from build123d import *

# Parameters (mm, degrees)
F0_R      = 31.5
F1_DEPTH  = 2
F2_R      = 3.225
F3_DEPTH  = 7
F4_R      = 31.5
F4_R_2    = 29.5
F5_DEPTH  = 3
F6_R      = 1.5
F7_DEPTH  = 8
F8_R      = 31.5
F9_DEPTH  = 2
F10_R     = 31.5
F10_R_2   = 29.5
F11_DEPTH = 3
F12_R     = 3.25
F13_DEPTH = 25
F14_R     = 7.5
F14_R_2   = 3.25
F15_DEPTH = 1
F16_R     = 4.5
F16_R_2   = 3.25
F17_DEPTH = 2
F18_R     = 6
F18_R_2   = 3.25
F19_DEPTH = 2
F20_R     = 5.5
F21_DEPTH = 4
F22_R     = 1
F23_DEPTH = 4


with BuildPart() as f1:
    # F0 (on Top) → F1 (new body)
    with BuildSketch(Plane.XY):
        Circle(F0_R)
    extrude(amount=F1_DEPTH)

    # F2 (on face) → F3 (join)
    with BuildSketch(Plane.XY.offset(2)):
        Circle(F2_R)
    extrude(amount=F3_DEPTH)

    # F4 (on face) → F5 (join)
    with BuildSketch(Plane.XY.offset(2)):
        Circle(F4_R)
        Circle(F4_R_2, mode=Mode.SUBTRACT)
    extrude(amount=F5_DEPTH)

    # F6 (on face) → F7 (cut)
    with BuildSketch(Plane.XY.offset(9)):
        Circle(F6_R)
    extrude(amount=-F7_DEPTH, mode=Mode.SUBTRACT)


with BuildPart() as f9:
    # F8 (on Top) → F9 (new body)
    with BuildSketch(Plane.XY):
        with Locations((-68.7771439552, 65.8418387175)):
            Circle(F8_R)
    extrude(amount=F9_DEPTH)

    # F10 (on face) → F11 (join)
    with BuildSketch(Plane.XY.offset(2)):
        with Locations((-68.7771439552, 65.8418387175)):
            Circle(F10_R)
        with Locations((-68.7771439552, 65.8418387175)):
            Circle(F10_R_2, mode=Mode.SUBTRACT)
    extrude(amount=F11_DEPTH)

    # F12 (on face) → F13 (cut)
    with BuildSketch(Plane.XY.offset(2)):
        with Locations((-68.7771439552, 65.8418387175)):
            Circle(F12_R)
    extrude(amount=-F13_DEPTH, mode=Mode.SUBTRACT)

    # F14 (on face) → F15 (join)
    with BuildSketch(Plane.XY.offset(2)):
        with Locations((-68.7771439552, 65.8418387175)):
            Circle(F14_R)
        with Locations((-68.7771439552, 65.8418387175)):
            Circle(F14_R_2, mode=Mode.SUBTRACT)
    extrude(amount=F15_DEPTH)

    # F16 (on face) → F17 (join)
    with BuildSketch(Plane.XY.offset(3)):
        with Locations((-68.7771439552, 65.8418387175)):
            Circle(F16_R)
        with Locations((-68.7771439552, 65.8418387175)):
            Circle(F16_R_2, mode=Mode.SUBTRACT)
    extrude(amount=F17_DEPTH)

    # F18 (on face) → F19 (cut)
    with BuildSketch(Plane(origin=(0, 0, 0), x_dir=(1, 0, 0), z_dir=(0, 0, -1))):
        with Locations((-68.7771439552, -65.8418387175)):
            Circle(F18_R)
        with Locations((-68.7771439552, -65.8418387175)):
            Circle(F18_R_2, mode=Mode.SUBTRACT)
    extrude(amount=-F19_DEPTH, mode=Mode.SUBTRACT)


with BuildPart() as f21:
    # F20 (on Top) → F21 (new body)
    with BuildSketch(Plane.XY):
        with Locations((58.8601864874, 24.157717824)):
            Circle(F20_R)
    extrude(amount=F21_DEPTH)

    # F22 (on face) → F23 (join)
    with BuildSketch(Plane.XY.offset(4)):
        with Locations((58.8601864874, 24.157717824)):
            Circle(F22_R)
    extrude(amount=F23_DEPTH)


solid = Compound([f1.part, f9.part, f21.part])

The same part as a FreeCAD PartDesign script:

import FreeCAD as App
import Part
import Sketcher
from FreeCAD import Vector
Q = App.Units.Quantity

doc = App.newDocument("Part")
params = doc.addObject("Spreadsheet::Sheet", "Params")
for row, (alias, value) in enumerate([
    ("sketch1_diameter", "63 mm"),
    ("pad1_length", "2 mm"),
    ("sketch2_diameter", "6.45 mm"),
    ("pad2_length", "7 mm"),
    ("sketch3_diameter", "63 mm"),
    ("sketch3_diameter2", "59 mm"),
    ("pad3_length", "3 mm"),
    ("sketch4_diameter", "3 mm"),
    ("pocket1_length", "8 mm"),
    ("sketch5_diameter", "63 mm"),
    ("pad4_length", "2 mm"),
    ("sketch6_diameter", "63 mm"),
    ("sketch6_diameter2", "59 mm"),
    ("pad5_length", "3 mm"),
    ("sketch7_diameter", "6.5 mm"),
    ("pocket2_length", "25 mm"),
    ("sketch8_diameter", "15 mm"),
    ("sketch8_diameter2", "6.5 mm"),
    ("pad6_length", "1 mm"),
    ("sketch9_diameter", "9 mm"),
    ("sketch9_diameter2", "6.5 mm"),
    ("pad7_length", "2 mm"),
    ("sketch10_diameter", "12 mm"),
    ("sketch10_diameter2", "6.5 mm"),
    ("pocket3_length", "2 mm"),
    ("sketch11_diameter", "11 mm"),
    ("pad8_length", "4 mm"),
    ("sketch12_diameter", "2 mm"),
    ("pad9_length", "4 mm"),
], start=1):
    params.set(f"A{row}", alias)
    params.set(f"B{row}", "=" + value)
    params.setAlias(f"B{row}", alias)

body = doc.addObject("PartDesign::Body", "Body")

# Sketch on XY plane
sketch1 = body.newObject("Sketcher::SketchObject", "Sketch")
sketch1.AttachmentSupport = (doc.getObject("XY_Plane"), [""])
sketch1.MapMode = "FlatFace"
sketch1.addGeometry(Part.Circle(Vector(0, 0, 0), Vector(0, 0, 1), 32), False)
sketch1.addConstraint([
    Sketcher.Constraint("Coincident", 0, 3, -1, 1),
    Sketcher.Constraint("Diameter", 0, Q("63 mm")),
])
sketch1.setExpression("Constraints[1]", "Params.sketch1_diameter")
pad1 = body.newObject("PartDesign::Pad", "Pad")
pad1.Profile = sketch1
pad1.setExpression("Length", "Params.pad1_length")

# Sketch on XY plane
sketch2 = body.newObject("Sketcher::SketchObject", "Sketch001")
sketch2.AttachmentSupport = (doc.getObject("XY_Plane"), [""])
sketch2.MapMode = "FlatFace"
sketch2.AttachmentOffset = App.Placement(Vector(0, 0, 2), App.Rotation())
sketch2.addGeometry(Part.Circle(Vector(0, 0, 0), Vector(0, 0, 1), 3.2), False)
sketch2.addConstraint([
    Sketcher.Constraint("Coincident", 0, 3, -1, 1),
    Sketcher.Constraint("Diameter", 0, Q("6.45 mm")),
])
sketch2.setExpression("Constraints[1]", "Params.sketch2_diameter")
pad2 = body.newObject("PartDesign::Pad", "Pad001")
pad2.Profile = sketch2
pad2.setExpression("Length", "Params.pad2_length")

# Sketch on XY plane
sketch3 = body.newObject("Sketcher::SketchObject", "Sketch002")
sketch3.AttachmentSupport = (doc.getObject("XY_Plane"), [""])
sketch3.MapMode = "FlatFace"
sketch3.AttachmentOffset = App.Placement(Vector(0, 0, 2), App.Rotation())
sketch3.addGeometry([
    Part.Circle(Vector(0, 0, 0), Vector(0, 0, 1), 32),
    Part.Circle(Vector(0, 0, 0), Vector(0, 0, 1), 30),
], False)
sketch3.addConstraint([
    Sketcher.Constraint("Coincident", 0, 3, -1, 1),
    Sketcher.Constraint("Coincident", 1, 3, -1, 1),
    Sketcher.Constraint("Diameter", 0, Q("63 mm")),
    Sketcher.Constraint("Diameter", 1, Q("59 mm")),
])
sketch3.setExpression("Constraints[2]", "Params.sketch3_diameter")
sketch3.setExpression("Constraints[3]", "Params.sketch3_diameter2")
pad3 = body.newObject("PartDesign::Pad", "Pad002")
pad3.Profile = sketch3
pad3.setExpression("Length", "Params.pad3_length")

# Sketch on XY plane
sketch4 = body.newObject("Sketcher::SketchObject", "Sketch003")
sketch4.AttachmentSupport = (doc.getObject("XY_Plane"), [""])
sketch4.MapMode = "FlatFace"
sketch4.AttachmentOffset = App.Placement(Vector(0, 0, 9), App.Rotation())
sketch4.addGeometry(Part.Circle(Vector(0, 0, 0), Vector(0, 0, 1), 1.5), False)
sketch4.addConstraint([
    Sketcher.Constraint("Coincident", 0, 3, -1, 1),
    Sketcher.Constraint("Diameter", 0, Q("3 mm")),
])
sketch4.setExpression("Constraints[1]", "Params.sketch4_diameter")
pocket1 = body.newObject("PartDesign::Pocket", "Pocket")
pocket1.Profile = sketch4
pocket1.setExpression("Length", "Params.pocket1_length")
body2 = doc.addObject("PartDesign::Body", "Body001")

# Sketch on XY plane
sketch5 = body2.newObject("Sketcher::SketchObject", "Sketch004")
sketch5.AttachmentSupport = (doc.getObject("XY_Plane001"), [""])
sketch5.MapMode = "FlatFace"
sketch5.addGeometry(Part.Circle(Vector(-69, 66, 0), Vector(0, 0, 1), 32), False)
sketch5.addConstraint([
    Sketcher.Constraint("Diameter", 0, Q("63 mm")),
    Sketcher.Constraint("DistanceY", -1, 1, 0, 3, Q("65.841839 mm")),
    Sketcher.Constraint("DistanceX", 0, 3, -1, 1, Q("68.777144 mm")),
])
sketch5.setExpression("Constraints[0]", "Params.sketch5_diameter")
pad4 = body2.newObject("PartDesign::Pad", "Pad003")
pad4.Profile = sketch5
pad4.setExpression("Length", "Params.pad4_length")

# Sketch on XY plane
sketch6 = body2.newObject("Sketcher::SketchObject", "Sketch005")
sketch6.AttachmentSupport = (doc.getObject("XY_Plane001"), [""])
sketch6.MapMode = "FlatFace"
sketch6.AttachmentOffset = App.Placement(Vector(0, 0, 2), App.Rotation())
sketch6.addGeometry([
    Part.Circle(Vector(-69, 66, 0), Vector(0, 0, 1), 32),
    Part.Circle(Vector(-69, 66, 0), Vector(0, 0, 1), 30),
], False)
sketch6.addConstraint([
    Sketcher.Constraint("Coincident", 1, 3, 0, 3),
    Sketcher.Constraint("Diameter", 0, Q("63 mm")),
    Sketcher.Constraint("Diameter", 1, Q("59 mm")),
    Sketcher.Constraint("DistanceY", -1, 1, 0, 3, Q("65.841839 mm")),
    Sketcher.Constraint("DistanceX", 0, 3, -1, 1, Q("68.777144 mm")),
])
sketch6.setExpression("Constraints[1]", "Params.sketch6_diameter")
sketch6.setExpression("Constraints[2]", "Params.sketch6_diameter2")
pad5 = body2.newObject("PartDesign::Pad", "Pad004")
pad5.Profile = sketch6
pad5.setExpression("Length", "Params.pad5_length")

# Sketch on XY plane
sketch7 = body2.newObject("Sketcher::SketchObject", "Sketch006")
sketch7.AttachmentSupport = (doc.getObject("XY_Plane001"), [""])
sketch7.MapMode = "FlatFace"
sketch7.AttachmentOffset = App.Placement(Vector(0, 0, 2), App.Rotation())
sketch7.addGeometry(Part.Circle(Vector(-68.8, 65.8, 0), Vector(0, 0, 1), 3.2), False)
sketch7.addConstraint([
    Sketcher.Constraint("Diameter", 0, Q("6.5 mm")),
    Sketcher.Constraint("DistanceY", -1, 1, 0, 3, Q("65.841839 mm")),
    Sketcher.Constraint("DistanceX", 0, 3, -1, 1, Q("68.777144 mm")),
])
sketch7.setExpression("Constraints[0]", "Params.sketch7_diameter")
pocket2 = body2.newObject("PartDesign::Pocket", "Pocket001")
pocket2.Profile = sketch7
pocket2.setExpression("Length", "Params.pocket2_length")

# Sketch on XY plane
sketch8 = body2.newObject("Sketcher::SketchObject", "Sketch007")
sketch8.AttachmentSupport = (doc.getObject("XY_Plane001"), [""])
sketch8.MapMode = "FlatFace"
sketch8.AttachmentOffset = App.Placement(Vector(0, 0, 2), App.Rotation())
sketch8.addGeometry([
    Part.Circle(Vector(-68.8, 65.8, 0), Vector(0, 0, 1), 7.5),
    Part.Circle(Vector(-68.8, 65.8, 0), Vector(0, 0, 1), 3.2),
], False)
sketch8.addConstraint([
    Sketcher.Constraint("Coincident", 1, 3, 0, 3),
    Sketcher.Constraint("Diameter", 0, Q("15 mm")),
    Sketcher.Constraint("Diameter", 1, Q("6.5 mm")),
    Sketcher.Constraint("DistanceY", -1, 1, 0, 3, Q("65.841839 mm")),
    Sketcher.Constraint("DistanceX", 0, 3, -1, 1, Q("68.777144 mm")),
])
sketch8.setExpression("Constraints[1]", "Params.sketch8_diameter")
sketch8.setExpression("Constraints[2]", "Params.sketch8_diameter2")
pad6 = body2.newObject("PartDesign::Pad", "Pad005")
pad6.Profile = sketch8
pad6.setExpression("Length", "Params.pad6_length")

# Sketch on XY plane
sketch9 = body2.newObject("Sketcher::SketchObject", "Sketch008")
sketch9.AttachmentSupport = (doc.getObject("XY_Plane001"), [""])
sketch9.MapMode = "FlatFace"
sketch9.AttachmentOffset = App.Placement(Vector(0, 0, 3), App.Rotation())
sketch9.addGeometry([
    Part.Circle(Vector(-68.8, 65.8, 0), Vector(0, 0, 1), 4.5),
    Part.Circle(Vector(-68.8, 65.8, 0), Vector(0, 0, 1), 3.2),
], False)
sketch9.addConstraint([
    Sketcher.Constraint("Coincident", 1, 3, 0, 3),
    Sketcher.Constraint("Diameter", 0, Q("9 mm")),
    Sketcher.Constraint("Diameter", 1, Q("6.5 mm")),
    Sketcher.Constraint("DistanceY", -1, 1, 0, 3, Q("65.841839 mm")),
    Sketcher.Constraint("DistanceX", 0, 3, -1, 1, Q("68.777144 mm")),
])
sketch9.setExpression("Constraints[1]", "Params.sketch9_diameter")
sketch9.setExpression("Constraints[2]", "Params.sketch9_diameter2")
pad7 = body2.newObject("PartDesign::Pad", "Pad006")
pad7.Profile = sketch9
pad7.setExpression("Length", "Params.pad7_length")

# Sketch on XY plane
sketch10 = body2.newObject("Sketcher::SketchObject", "Sketch009")
sketch10.AttachmentSupport = (doc.getObject("XY_Plane001"), [""])
sketch10.MapMode = "FlatFace"
sketch10.addGeometry([
    Part.Circle(Vector(-68.8, 65.8, 0), Vector(0, 0, 1), 6),
    Part.Circle(Vector(-68.8, 65.8, 0), Vector(0, 0, 1), 3.2),
], False)
sketch10.addConstraint([
    Sketcher.Constraint("Coincident", 1, 3, 0, 3),
    Sketcher.Constraint("Diameter", 0, Q("12 mm")),
    Sketcher.Constraint("Diameter", 1, Q("6.5 mm")),
    Sketcher.Constraint("DistanceY", -1, 1, 0, 3, Q("65.841839 mm")),
    Sketcher.Constraint("DistanceX", 0, 3, -1, 1, Q("68.777144 mm")),
])
sketch10.setExpression("Constraints[1]", "Params.sketch10_diameter")
sketch10.setExpression("Constraints[2]", "Params.sketch10_diameter2")
pocket3 = body2.newObject("PartDesign::Pocket", "Pocket002")
pocket3.Profile = sketch10
pocket3.setExpression("Length", "Params.pocket3_length")
pocket3.Reversed = True
body3 = doc.addObject("PartDesign::Body", "Body002")

# Sketch on XY plane
sketch11 = body3.newObject("Sketcher::SketchObject", "Sketch010")
sketch11.AttachmentSupport = (doc.getObject("XY_Plane002"), [""])
sketch11.MapMode = "FlatFace"
sketch11.addGeometry(Part.Circle(Vector(59, 24, 0), Vector(0, 0, 1), 6), False)
sketch11.addConstraint([
    Sketcher.Constraint("Diameter", 0, Q("11 mm")),
    Sketcher.Constraint("DistanceX", -1, 1, 0, 3, Q("58.860186 mm")),
    Sketcher.Constraint("DistanceY", -1, 1, 0, 3, Q("24.157718 mm")),
])
sketch11.setExpression("Constraints[0]", "Params.sketch11_diameter")
pad8 = body3.newObject("PartDesign::Pad", "Pad007")
pad8.Profile = sketch11
pad8.setExpression("Length", "Params.pad8_length")

# Sketch on XY plane
sketch12 = body3.newObject("Sketcher::SketchObject", "Sketch011")
sketch12.AttachmentSupport = (doc.getObject("XY_Plane002"), [""])
sketch12.MapMode = "FlatFace"
sketch12.AttachmentOffset = App.Placement(Vector(0, 0, 4), App.Rotation())
sketch12.addGeometry(Part.Circle(Vector(58.9, 24.2, 0), Vector(0, 0, 1), 1), False)
sketch12.addConstraint([
    Sketcher.Constraint("Diameter", 0, Q("2 mm")),
    Sketcher.Constraint("DistanceX", -1, 1, 0, 3, Q("58.860186 mm")),
    Sketcher.Constraint("DistanceY", -1, 1, 0, 3, Q("24.157718 mm")),
])
sketch12.setExpression("Constraints[0]", "Params.sketch12_diameter")
pad9 = body3.newObject("PartDesign::Pad", "Pad008")
pad9.Profile = sketch12
pad9.setExpression("Length", "Params.pad9_length")

doc.recompute()
